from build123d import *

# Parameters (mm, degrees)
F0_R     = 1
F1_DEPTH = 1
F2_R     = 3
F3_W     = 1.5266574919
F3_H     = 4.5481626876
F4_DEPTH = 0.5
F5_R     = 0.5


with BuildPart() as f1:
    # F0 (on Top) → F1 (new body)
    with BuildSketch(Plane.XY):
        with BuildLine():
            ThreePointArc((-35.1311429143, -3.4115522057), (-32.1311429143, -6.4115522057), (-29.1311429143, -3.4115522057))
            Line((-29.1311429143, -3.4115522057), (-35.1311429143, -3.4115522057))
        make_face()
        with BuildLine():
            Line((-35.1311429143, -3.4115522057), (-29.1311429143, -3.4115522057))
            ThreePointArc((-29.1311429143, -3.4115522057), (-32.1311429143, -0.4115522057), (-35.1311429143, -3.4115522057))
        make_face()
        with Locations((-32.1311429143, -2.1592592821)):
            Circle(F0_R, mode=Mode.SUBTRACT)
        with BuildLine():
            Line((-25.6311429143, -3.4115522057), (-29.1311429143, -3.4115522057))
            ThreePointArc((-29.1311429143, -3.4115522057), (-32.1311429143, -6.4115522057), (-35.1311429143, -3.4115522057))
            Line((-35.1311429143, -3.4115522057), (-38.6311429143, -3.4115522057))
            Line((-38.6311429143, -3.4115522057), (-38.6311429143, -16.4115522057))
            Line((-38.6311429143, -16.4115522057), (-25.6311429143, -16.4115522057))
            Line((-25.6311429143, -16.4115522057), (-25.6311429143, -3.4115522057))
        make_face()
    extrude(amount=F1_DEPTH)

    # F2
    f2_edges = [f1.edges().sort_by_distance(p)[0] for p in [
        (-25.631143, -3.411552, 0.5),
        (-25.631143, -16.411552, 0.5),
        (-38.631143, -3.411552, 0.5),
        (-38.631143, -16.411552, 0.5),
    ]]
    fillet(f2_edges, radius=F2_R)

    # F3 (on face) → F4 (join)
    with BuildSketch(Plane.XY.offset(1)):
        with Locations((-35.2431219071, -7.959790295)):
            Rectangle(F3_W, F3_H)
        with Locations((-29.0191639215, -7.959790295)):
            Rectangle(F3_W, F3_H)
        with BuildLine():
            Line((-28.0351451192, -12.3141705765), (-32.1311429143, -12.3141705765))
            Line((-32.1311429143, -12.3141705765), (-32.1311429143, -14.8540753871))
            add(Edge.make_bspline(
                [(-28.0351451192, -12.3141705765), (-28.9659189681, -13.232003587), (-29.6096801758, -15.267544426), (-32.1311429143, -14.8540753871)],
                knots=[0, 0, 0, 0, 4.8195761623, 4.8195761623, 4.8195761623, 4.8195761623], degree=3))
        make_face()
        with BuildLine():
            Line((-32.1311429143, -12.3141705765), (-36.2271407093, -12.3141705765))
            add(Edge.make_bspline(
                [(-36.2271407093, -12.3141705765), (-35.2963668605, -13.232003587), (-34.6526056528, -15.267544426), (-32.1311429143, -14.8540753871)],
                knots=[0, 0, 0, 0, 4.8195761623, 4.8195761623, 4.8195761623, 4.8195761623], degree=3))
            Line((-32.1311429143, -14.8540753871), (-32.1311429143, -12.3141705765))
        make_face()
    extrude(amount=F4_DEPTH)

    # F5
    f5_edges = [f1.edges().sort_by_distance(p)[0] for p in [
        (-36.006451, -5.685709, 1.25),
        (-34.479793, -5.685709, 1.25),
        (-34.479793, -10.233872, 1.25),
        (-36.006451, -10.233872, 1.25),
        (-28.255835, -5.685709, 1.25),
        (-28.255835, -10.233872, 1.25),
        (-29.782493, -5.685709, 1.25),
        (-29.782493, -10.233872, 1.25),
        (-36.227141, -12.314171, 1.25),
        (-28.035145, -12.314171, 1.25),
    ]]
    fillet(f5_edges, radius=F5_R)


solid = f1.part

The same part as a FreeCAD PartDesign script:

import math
import FreeCAD as App
import Part
import Sketcher


def edges_at(feature, points):
    """Names of the edges that pass closest to the given points."""
    edges = feature.Shape.Edges
    near = lambda p: min(range(len(edges)), key=lambda i: edges[i].distToShape(Part.Vertex(*p))[0])
    return sorted({f"Edge{near(p) + 1}" for p in points})

doc = App.newDocument("Part")
body = doc.addObject("PartDesign::Body", "Body")

# Sketch on XY plane
sketch1 = body.newObject("Sketcher::SketchObject", "Sketch")
sketch1.AttachmentSupport = (doc.getObject("XY_Plane"), [""])
sketch1.MapMode = "FlatFace"
sketch1.addGeometry(Part.ArcOfCircle(Part.Circle(App.Vector(-32.1, -3.4, 0), App.Vector(0, 0, 1), 3), math.radians(0), math.radians(180)), False)
sketch1.addGeometry(Part.LineSegment(App.Vector(-35.1, -3.4, 0), App.Vector(-38.6, -3.4, 0)), False)
sketch1.addGeometry(Part.LineSegment(App.Vector(-38.6, -3.4, 0), App.Vector(-38.6, -16.4, 0)), False)
sketch1.addGeometry(Part.LineSegment(App.Vector(-38.6, -16.4, 0), App.Vector(-25.6, -16.4, 0)), False)
sketch1.addGeometry(Part.LineSegment(App.Vector(-25.6, -16.4, 0), App.Vector(-25.6, -3.4, 0)), False)
sketch1.addGeometry(Part.LineSegment(App.Vector(-25.6, -3.4, 0), App.Vector(-29.1, -3.4, 0)), False)
sketch1.addGeometry(Part.Circle(App.Vector(-32.1, -2.2, 0), App.Vector(0, 0, 1), 1), False)
sketch1.addConstraint(Sketcher.Constraint("Coincident", 0, 2, 1, 1))
sketch1.addConstraint(Sketcher.Constraint("Coincident", 1, 2, 2, 1))
sketch1.addConstraint(Sketcher.Constraint("Coincident", 2, 2, 3, 1))
sketch1.addConstraint(Sketcher.Constraint("Coincident", 3, 2, 4, 1))
sketch1.addConstraint(Sketcher.Constraint("Coincident", 4, 2, 5, 1))
sketch1.addConstraint(Sketcher.Constraint("Coincident", 5, 2, 0, 1))
sketch1.addConstraint(Sketcher.Constraint("Horizontal", 1))
sketch1.addConstraint(Sketcher.Constraint("Vertical", 2))
sketch1.addConstraint(Sketcher.Constraint("Horizontal", 3))
sketch1.addConstraint(Sketcher.Constraint("Vertical", 4))
sketch1.addConstraint(Sketcher.Constraint("Horizontal", 5))
sketch1.addConstraint(Sketcher.Constraint("Horizontal", 1, 2, 4, 2))
sketch1.addConstraint(Sketcher.Constraint("Vertical", 0, 3, 6, 3))
sketch1.addConstraint(Sketcher.Constraint("Equal", 1, 5))
sketch1.addConstraint(Sketcher.Constraint("Equal", 3, 2))
sketch1.addConstraint(Sketcher.Constraint("Diameter", 6, 2.0))
sketch1.addConstraint(Sketcher.Constraint("Radius", 0, 3.0))
sketch1.addConstraint(Sketcher.Constraint("DistanceX", 3, 1, 3, 2, 13.0))
sketch1.addConstraint(Sketcher.Constraint("DistanceY", 2, 2, 0, 3, 13.0))
sketch1.addConstraint(Sketcher.Constraint("DistanceY", 6, 3, -1, 1, 2.159259))
sketch1.addConstraint(Sketcher.Constraint("DistanceX", 0, 3, -1, 1, 32.131143))
sketch1.addConstraint(Sketcher.Constraint("DistanceY", 0, 3, -1, 1, 3.411552))
pad1 = body.newObject("PartDesign::Pad", "Pad")
pad1.Profile = sketch1
pad1.Length = 1
doc.recompute()

fillet = body.newObject("PartDesign::Fillet", "Fillet")
fillet.Base = (pad1, edges_at(pad1, [
    (-25.631, -3.412, 0.5),
    (-25.631, -16.412, 0.5),
    (-38.631, -3.412, 0.5),
    (-38.631, -16.412, 0.5),
]))
fillet.Radius = 3

# Sketch on XY plane
sketch2 = body.newObject("Sketcher::SketchObject", "Sketch001")
sketch2.AttachmentSupport = (doc.getObject("XY_Plane"), [""])
sketch2.MapMode = "FlatFace"
sketch2.AttachmentOffset = App.Placement(App.Vector(0, 0, 1), App.Rotation())
sketch2.addGeometry(Part.LineSegment(App.Vector(-36.006451, -5.685709, 0), App.Vector(-36.006451, -10.233872, 0)), False)
sketch2.addGeometry(Part.LineSegment(App.Vector(-36.006451, -10.233872, 0), App.Vector(-34.479793, -10.233872, 0)), False)
sketch2.addGeometry(Part.LineSegment(App.Vector(-34.479793, -10.233872, 0), App.Vector(-34.479793, -5.685709, 0)), False)
sketch2.addGeometry(Part.LineSegment(App.Vector(-34.479793, -5.685709, 0), App.Vector(-36.006451, -5.685709, 0)), False)
sketch2.addGeometry(Part.LineSegment(App.Vector(-29.782493, -5.685709, 0), App.Vector(-29.782493, -10.233872, 0)), False)
sketch2.addGeometry(Part.LineSegment(App.Vector(-29.782493, -10.233872, 0), App.Vector(-28.255835, -10.233872, 0)), False)
sketch2.addGeometry(Part.LineSegment(App.Vector(-28.255835, -10.233872, 0), App.Vector(-28.255835, -5.685709, 0)), False)
sketch2.addGeometry(Part.LineSegment(App.Vector(-28.255835, -5.685709, 0), App.Vector(-29.782493, -5.685709, 0)), False)
sketch2.addGeometry(Part.LineSegment(App.Vector(-28.035145, -12.314171, 0), App.Vector(-36.227141, -12.314171, 0)), False)
sketch2.addGeometry(Part.BSplineCurve([App.Vector(-36.227141, -12.314171, 0), App.Vector(-35.296367, -13.232004, 0), App.Vector(-34.652606, -15.267544, 0), App.Vector(-32.131143, -14.854075, 0)], [4, 4], [0, 4.819576162], False, 3, [1, 1, 1, 1], False), False)
sketch2.addGeometry(Part.BSplineCurve([App.Vector(-28.035145, -12.314171, 0), App.Vector(-28.965919, -13.232004, 0), App.Vector(-29.60968, -15.267544, 0), App.Vector(-32.131143, -14.854075, 0)], [4, 4], [0, 4.819576162], False, 3, [1, 1, 1, 1], False), False)
sketch2.addConstraint(Sketcher.Constraint("Block", 9))
sketch2.addConstraint(Sketcher.Constraint("Block", 10))
sketch2.addConstraint(Sketcher.Constraint("Coincident", 0, 2, 1, 1))
sketch2.addConstraint(Sketcher.Constraint("Coincident", 1, 2, 2, 1))
sketch2.addConstraint(Sketcher.Constraint("Coincident", 2, 2, 3, 1))
sketch2.addConstraint(Sketcher.Constraint("Coincident", 3, 2, 0, 1))
sketch2.addConstraint(Sketcher.Constraint("Coincident", 4, 2, 5, 1))
sketch2.addConstraint(Sketcher.Constraint("Coincident", 5, 2, 6, 1))
sketch2.addConstraint(Sketcher.Constraint("Coincident", 6, 2, 7, 1))
sketch2.addConstraint(Sketcher.Constraint("Coincident", 7, 2, 4, 1))
sketch2.addConstraint(Sketcher.Constraint("Coincident", 8, 2, 9, 1))
sketch2.addConstraint(Sketcher.Constraint("Coincident", 10, 1, 8, 1))
sketch2.addConstraint(Sketcher.Constraint("Vertical", 0))
sketch2.addConstraint(Sketcher.Constraint("Horizontal", 1))
sketch2.addConstraint(Sketcher.Constraint("Vertical", 2))
sketch2.addConstraint(Sketcher.Constraint("Horizontal", 3))
sketch2.addConstraint(Sketcher.Constraint("Vertical", 4))
sketch2.addConstraint(Sketcher.Constraint("Horizontal", 5))
sketch2.addConstraint(Sketcher.Constraint("Vertical", 6))
sketch2.addConstraint(Sketcher.Constraint("Horizontal", 7))
sketch2.addConstraint(Sketcher.Constraint("Horizontal", 1, 2, 4, 2))
sketch2.addConstraint(Sketcher.Constraint("Horizontal", 3, 2, 6, 2))
sketch2.addConstraint(Sketcher.Constraint("Equal", 3, 5))
sketch2.addConstraint(Sketcher.Constraint("DistanceX", 1, 2, 4, 2, 4.6973))
sketch2.addConstraint(Sketcher.Constraint("DistanceY", 8, 2, 0, 2, 2.080299))
sketch2.addConstraint(Sketcher.Constraint("DistanceX", 1, 1, 1, 2, 1.526657))
sketch2.addConstraint(Sketcher.Constraint("DistanceY", 0, 2, 0, 1, 4.548163))
sketch2.addConstraint(Sketcher.Constraint("DistanceX", 0, 2, -1, 1, 36.006451))
pad2 = body.newObject("PartDesign::Pad", "Pad001")
pad2.Profile = sketch2
pad2.Length = 0.5
doc.recompute()

fillet2 = body.newObject("PartDesign::Fillet", "Fillet001")
fillet2.Base = (pad2, edges_at(pad2, [
    (-36.006, -5.686, 1.25),
    (-34.48, -5.686, 1.25),
    (-34.48, -10.234, 1.25),
    (-36.006, -10.234, 1.25),
    (-28.256, -5.686, 1.25),
    (-28.256, -10.234, 1.25),
    (-29.782, -5.686, 1.25),
    (-29.782, -10.234, 1.25),
    (-36.227, -12.314, 1.25),
    (-28.035, -12.314, 1.25),
]))
fillet2.Radius = 0.5

doc.recompute()
